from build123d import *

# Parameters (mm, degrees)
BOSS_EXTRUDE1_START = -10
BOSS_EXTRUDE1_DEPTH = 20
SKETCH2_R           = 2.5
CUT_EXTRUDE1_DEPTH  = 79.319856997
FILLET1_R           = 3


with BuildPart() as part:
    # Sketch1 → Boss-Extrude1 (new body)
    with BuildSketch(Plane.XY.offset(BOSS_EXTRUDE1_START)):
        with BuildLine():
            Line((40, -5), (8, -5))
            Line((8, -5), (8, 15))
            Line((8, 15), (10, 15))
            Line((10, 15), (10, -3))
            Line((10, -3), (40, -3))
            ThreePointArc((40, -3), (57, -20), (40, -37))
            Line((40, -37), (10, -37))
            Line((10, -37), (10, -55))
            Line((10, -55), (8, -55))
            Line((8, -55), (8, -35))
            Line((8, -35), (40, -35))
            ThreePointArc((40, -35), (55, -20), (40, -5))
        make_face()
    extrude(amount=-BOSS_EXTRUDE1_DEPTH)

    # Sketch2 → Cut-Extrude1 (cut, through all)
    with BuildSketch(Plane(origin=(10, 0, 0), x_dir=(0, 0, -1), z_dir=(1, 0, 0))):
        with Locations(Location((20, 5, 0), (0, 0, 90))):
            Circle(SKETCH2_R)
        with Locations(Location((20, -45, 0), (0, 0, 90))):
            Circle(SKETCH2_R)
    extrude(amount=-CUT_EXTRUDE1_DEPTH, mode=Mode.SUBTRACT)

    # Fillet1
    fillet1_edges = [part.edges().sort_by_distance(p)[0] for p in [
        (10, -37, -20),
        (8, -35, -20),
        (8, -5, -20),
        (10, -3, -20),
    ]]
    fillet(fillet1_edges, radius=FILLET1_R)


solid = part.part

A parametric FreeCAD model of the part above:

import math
import FreeCAD as App
import Part
import Sketcher
Q = App.Units.Quantity


def edges_at(feature, points):
    """Names of the edges that pass closest to the given points."""
    edges = feature.Shape.Edges
    near = lambda p: min(range(len(edges)), key=lambda i: edges[i].distToShape(Part.Vertex(*p))[0])
    return sorted({f"Edge{near(p) + 1}" for p in points})

doc = App.newDocument("Part")
params = doc.addObject("Spreadsheet::Sheet", "Params")
for row, (alias, value) in enumerate([
    ("sketch1_radius", "15 mm"),
    ("sketch1_radius2", "17 mm"),
    ("sketch1_width", "32 mm"),
    ("sketch1_width2", "2 mm"),
    ("sketch1_height", "20 mm"),
    ("pad1_length", "20 mm"),
    ("sketch2_diameter", "5 mm"),
    ("fillet_radius", "3 mm"),
], start=1):
    params.set(f"A{row}", alias)
    params.set(f"B{row}", "=" + value)
    params.setAlias(f"B{row}", alias)

body = doc.addObject("PartDesign::Body", "Body")

sketch1 = doc.addObject("Sketcher::SketchObject", "Sketch")
body.addObject(sketch1)
sketch1.AttachmentSupport = (doc.XY_Plane, [""])
sketch1.MapMode = "FlatFace"
sketch1.AttachmentOffset = App.Placement(App.Vector(0, 0, -10), App.Rotation())
sketch1.addGeometry([
    Part.LineSegment(App.Vector(8, -5, 0), App.Vector(40, -5, 0)),
    Part.ArcOfCircle(Part.Circle(App.Vector(40, -20, 0), App.Vector(0, 0, 1), 15), math.radians(-90), math.radians(90)),
    Part.LineSegment(App.Vector(40, -35, 0), App.Vector(8, -35, 0)),
    Part.LineSegment(App.Vector(8, -35, 0), App.Vector(8, -55, 0)),
    Part.LineSegment(App.Vector(8, -55, 0), App.Vector(10, -55, 0)),
    Part.LineSegment(App.Vector(10, -55, 0), App.Vector(10, -37, 0)),
    Part.LineSegment(App.Vector(10, -37, 0), App.Vector(40, -37, 0)),
    Part.ArcOfCircle(Part.Circle(App.Vector(40, -20, 0), App.Vector(0, 0, 1), 17), math.radians(-90), math.radians(90)),
    Part.LineSegment(App.Vector(40, -3, 0), App.Vector(10, -3, 0)),
    Part.LineSegment(App.Vector(10, -3, 0), App.Vector(10, 15, 0)),
    Part.LineSegment(App.Vector(10, 15, 0), App.Vector(8, 15, 0)),
    Part.LineSegment(App.Vector(8, 15, 0), App.Vector(8, -5, 0)),
], False)
sketch1.addConstraint([
    Sketcher.Constraint("Tangent", 0, 2, 1, 2),
    Sketcher.Constraint("Tangent", 1, 1, 2, 1),
    Sketcher.Constraint("Coincident", 2, 2, 3, 1),
    Sketcher.Constraint("Coincident", 3, 2, 4, 1),
    Sketcher.Constraint("Coincident", 4, 2, 5, 1),
    Sketcher.Constraint("Coincident", 5, 2, 6, 1),
    Sketcher.Constraint("Tangent", 6, 2, 7, 1),
    Sketcher.Constraint("Tangent", 7, 2, 8, 1),
    Sketcher.Constraint("Coincident", 8, 2, 9, 1),
    Sketcher.Constraint("Coincident", 9, 2, 10, 1),
    Sketcher.Constraint("Coincident", 10, 2, 11, 1),
    Sketcher.Constraint("Coincident", 11, 2, 0, 1),
    Sketcher.Constraint("Horizontal", 0),
    Sketcher.Constraint("Horizontal", 2),
    Sketcher.Constraint("Vertical", 3),
    Sketcher.Constraint("Horizontal", 4),
    Sketcher.Constraint("Vertical", 5),
    Sketcher.Constraint("Horizontal", 6),
    Sketcher.Constraint("Horizontal", 8),
    Sketcher.Constraint("Vertical", 9),
    Sketcher.Constraint("Horizontal", 10),
    Sketcher.Constraint("Vertical", 11),
    Sketcher.Constraint("Coincident", 7, 3, 1, 3),
    Sketcher.Constraint("Vertical", 5, 2, 8, 2),
    Sketcher.Constraint("Vertical", 3, 2, 10, 2),
    Sketcher.Constraint("Equal", 5, 9),
    Sketcher.Constraint("Radius", 1, Q("15 mm")),
    Sketcher.Constraint("Radius", 7, Q("17 mm")),
    Sketcher.Constraint("DistanceX", 0, 1, 0, 2, Q("32 mm")),
    Sketcher.Constraint("DistanceX", 4, 1, 4, 2, Q("2 mm")),
    Sketcher.Constraint("DistanceY", 3, 2, 3, 1, Q("20 mm")),
    Sketcher.Constraint("DistanceX", -1, 1, 1, 3, Q("40 mm")),
    Sketcher.Constraint("DistanceY", 1, 3, -1, 1, Q("20 mm")),
])
sketch1.setExpression("Constraints[26]", "Params.sketch1_radius")
sketch1.setExpression("Constraints[27]", "Params.sketch1_radius2")
sketch1.setExpression("Constraints[28]", "Params.sketch1_width")
sketch1.setExpression("Constraints[29]", "Params.sketch1_width2")
sketch1.setExpression("Constraints[30]", "Params.sketch1_height")
pad1 = doc.addObject("PartDesign::Pad", "Pad")
body.addObject(pad1)
pad1.Profile = sketch1
pad1.setExpression("Length", "Params.pad1_length")
pad1.Reversed = True

sketch2 = doc.addObject("Sketcher::SketchObject", "Sketch001")
body.addObject(sketch2)
sketch2.AttachmentSupport = (doc.YZ_Plane, [""])
sketch2.MapMode = "FlatFace"
sketch2.AttachmentOffset = App.Placement(App.Vector(0, 0, 10), App.Rotation())
sketch2.addGeometry([
    Part.Circle(App.Vector(5, -20, 0), App.Vector(0, 0, 1), 2.5),
    Part.Circle(App.Vector(-45, -20, 0), App.Vector(0, 0, 1), 2.5),
], False)
sketch2.addConstraint([
    Sketcher.Constraint("Equal", 0, 1),
    Sketcher.Constraint("Horizontal", 0, 3, 1, 3),
    Sketcher.Constraint("Diameter", 0, Q("5 mm")),
    Sketcher.Constraint("DistanceX", -1, 1, 0, 3, Q("5 mm")),
    Sketcher.Constraint("DistanceY", 0, 3, -1, 1, Q("20 mm")),
    Sketcher.Constraint("DistanceX", 1, 3, -1, 1, Q("45 mm")),
])
sketch2.setExpression("Constraints[2]", "Params.sketch2_diameter")
pocket1 = doc.addObject("PartDesign::Pocket", "Pocket")
body.addObject(pocket1)
pocket1.Profile = sketch2
pocket1.Type = "ThroughAll"
doc.recompute()

fillet = doc.addObject("PartDesign::Fillet", "Fillet")
body.addObject(fillet)
fillet.Base = (pocket1, edges_at(pocket1, [
    (10, -37, -20),
    (8, -35, -20),
    (8, -5, -20),
    (10, -3, -20),
]))
fillet.setExpression("Radius", "Params.fillet_radius")

doc.recompute()
